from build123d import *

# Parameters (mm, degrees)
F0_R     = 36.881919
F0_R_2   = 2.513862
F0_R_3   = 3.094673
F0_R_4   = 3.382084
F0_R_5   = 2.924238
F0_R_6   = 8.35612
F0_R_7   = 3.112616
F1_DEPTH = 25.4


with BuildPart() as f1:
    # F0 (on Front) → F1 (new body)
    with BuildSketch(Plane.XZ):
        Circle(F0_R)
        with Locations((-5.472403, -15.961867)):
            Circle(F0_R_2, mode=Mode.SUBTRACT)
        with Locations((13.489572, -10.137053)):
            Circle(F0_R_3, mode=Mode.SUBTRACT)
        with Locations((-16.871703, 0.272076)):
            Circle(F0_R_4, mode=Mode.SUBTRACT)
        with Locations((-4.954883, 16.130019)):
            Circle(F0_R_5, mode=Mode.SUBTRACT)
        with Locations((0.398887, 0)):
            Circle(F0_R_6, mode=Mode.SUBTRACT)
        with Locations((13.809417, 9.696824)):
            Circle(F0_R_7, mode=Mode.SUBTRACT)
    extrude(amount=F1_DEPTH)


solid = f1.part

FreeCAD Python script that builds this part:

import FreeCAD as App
import Part
import Sketcher

V = App.Vector
Q = App.Units.Quantity

doc = App.newDocument("Part")
params = doc.addObject("Spreadsheet::Sheet", "Params")
for row, (alias, value) in enumerate([
    ("pad1_length", "1 in"),
], start=1):
    params.set(f"A{row}", alias)
    params.set(f"B{row}", "=" + value)
    params.setAlias(f"B{row}", alias)

body = doc.addObject("PartDesign::Body", "Body")

# Sketch on XZ plane
sketch1 = body.newObject("Sketcher::SketchObject", "Sketch")
sketch1.AttachmentSupport = (doc.getObject("XZ_Plane"), [""])
sketch1.MapMode = "FlatFace"
sketch1.addGeometry([
    Part.Circle(V(0, 0, 0), V(0, 0, 1), 36.9),  # 0
    Part.Circle(V(-5.5, -16, 0), V(0, 0, 1), 2.5),  # 1
    Part.Circle(V(-16.9, 0.3, 0), V(0, 0, 1), 3.4),  # 2
    Part.Circle(V(13.5, -10.1, 0), V(0, 0, 1), 3.1),  # 3
    Part.Circle(V(0.4, 0, 0), V(0, 0, 1), 8.4),  # 4
    Part.Circle(V(-5, 16.1, 0), V(0, 0, 1), 2.9),  # 5
    Part.Circle(V(13.8, 9.7, 0), V(0, 0, 1), 3.1),  # 6
], False)
sketch1.addConstraint([
    Sketcher.Constraint("Coincident", 0, 3, -1, 1),
    Sketcher.Constraint("PointOnObject", 4, 3, -1),
    Sketcher.Constraint("Diameter", 0, Q("73.763838 mm")),
    Sketcher.Constraint("Diameter", 4, Q("16.71224 mm")),
    Sketcher.Constraint("Diameter", 1, Q("5.027724 mm")),
    Sketcher.Constraint("Diameter", 2, Q("6.764168 mm")),
    Sketcher.Constraint("Diameter", 3, Q("6.189346 mm")),
    Sketcher.Constraint("Diameter", 5, Q("5.848476 mm")),
    Sketcher.Constraint("Diameter", 6, Q("6.225232 mm")),
    Sketcher.Constraint("DistanceX", 2, 3, 1, 3, Q("11.3993 mm")),
    Sketcher.Constraint("DistanceX", 5, 3, 6, 3, Q("18.7643 mm")),
    Sketcher.Constraint("DistanceY", -1, 1, 5, 3, Q("16.130019 mm")),
    Sketcher.Constraint("DistanceY", 3, 3, 2, 3, Q("10.409129 mm")),
    Sketcher.Constraint("DistanceX", 1, 3, 4, 3, Q("5.87129 mm")),
    Sketcher.Constraint("DistanceX", 5, 3, 4, 3, Q("5.35377 mm")),
    Sketcher.Constraint("DistanceY", 3, 3, 5, 3, Q("26.267072 mm")),
    Sketcher.Constraint("DistanceX", 1, 3, -1, 1, Q("5.472403 mm")),
    Sketcher.Constraint("DistanceY", 1, 3, -1, 1, Q("15.961867 mm")),
    Sketcher.Constraint("DistanceX", -1, 1, 3, 3, Q("13.489572 mm")),
    Sketcher.Constraint("DistanceY", -1, 1, 6, 3, Q("9.696824 mm")),
])
pad1 = body.newObject("PartDesign::Pad", "Pad")
pad1.Profile = sketch1
pad1.setExpression("Length", "Params.pad1_length")

doc.recompute()
